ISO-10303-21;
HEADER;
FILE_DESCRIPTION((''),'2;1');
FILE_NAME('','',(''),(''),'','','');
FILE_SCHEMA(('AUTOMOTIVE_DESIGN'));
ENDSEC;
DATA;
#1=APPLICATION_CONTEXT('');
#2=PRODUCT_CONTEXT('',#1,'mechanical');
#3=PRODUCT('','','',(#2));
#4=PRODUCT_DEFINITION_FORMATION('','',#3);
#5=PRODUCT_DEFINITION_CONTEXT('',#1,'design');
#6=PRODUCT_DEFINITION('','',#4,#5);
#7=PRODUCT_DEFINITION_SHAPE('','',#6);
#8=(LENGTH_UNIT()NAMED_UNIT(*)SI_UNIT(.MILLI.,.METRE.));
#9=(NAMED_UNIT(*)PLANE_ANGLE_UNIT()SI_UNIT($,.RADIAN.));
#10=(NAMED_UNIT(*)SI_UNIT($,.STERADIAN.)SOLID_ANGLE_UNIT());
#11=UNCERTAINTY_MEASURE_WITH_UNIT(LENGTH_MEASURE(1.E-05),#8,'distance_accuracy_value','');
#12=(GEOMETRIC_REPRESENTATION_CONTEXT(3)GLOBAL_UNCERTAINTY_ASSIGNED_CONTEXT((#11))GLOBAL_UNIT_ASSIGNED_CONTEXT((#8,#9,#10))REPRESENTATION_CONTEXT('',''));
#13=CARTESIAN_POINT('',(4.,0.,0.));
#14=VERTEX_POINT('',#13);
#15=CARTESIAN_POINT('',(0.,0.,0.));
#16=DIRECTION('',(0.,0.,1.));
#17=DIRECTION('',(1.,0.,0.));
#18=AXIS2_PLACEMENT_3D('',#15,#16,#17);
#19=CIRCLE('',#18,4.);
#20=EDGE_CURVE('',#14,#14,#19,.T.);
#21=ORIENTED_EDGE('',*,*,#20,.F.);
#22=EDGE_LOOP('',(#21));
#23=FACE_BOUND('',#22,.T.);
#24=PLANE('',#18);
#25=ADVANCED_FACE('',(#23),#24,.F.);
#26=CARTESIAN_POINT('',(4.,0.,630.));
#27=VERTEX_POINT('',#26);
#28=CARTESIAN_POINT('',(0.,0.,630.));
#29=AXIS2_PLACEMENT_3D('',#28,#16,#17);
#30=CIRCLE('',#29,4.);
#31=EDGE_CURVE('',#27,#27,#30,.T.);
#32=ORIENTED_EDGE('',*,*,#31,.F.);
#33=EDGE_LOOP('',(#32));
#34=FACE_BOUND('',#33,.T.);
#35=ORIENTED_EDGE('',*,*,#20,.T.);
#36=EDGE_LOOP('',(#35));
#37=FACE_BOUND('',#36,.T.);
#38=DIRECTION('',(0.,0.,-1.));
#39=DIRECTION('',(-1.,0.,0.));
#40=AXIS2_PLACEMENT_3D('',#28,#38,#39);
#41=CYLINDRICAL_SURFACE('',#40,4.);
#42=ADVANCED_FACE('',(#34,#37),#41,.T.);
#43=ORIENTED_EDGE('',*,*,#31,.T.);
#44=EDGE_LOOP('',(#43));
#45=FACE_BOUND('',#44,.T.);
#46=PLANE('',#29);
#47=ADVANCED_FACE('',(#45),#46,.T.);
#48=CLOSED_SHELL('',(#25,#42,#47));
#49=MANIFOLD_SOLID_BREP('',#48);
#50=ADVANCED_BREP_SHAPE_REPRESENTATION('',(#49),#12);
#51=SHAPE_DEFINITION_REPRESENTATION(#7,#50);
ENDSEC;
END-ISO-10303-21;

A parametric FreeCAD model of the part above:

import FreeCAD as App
import Part
import Sketcher

V = App.Vector

doc = App.newDocument("Part")
body = doc.addObject("PartDesign::Body", "Body")

# Sketch on XY plane
sketch1 = body.newObject("Sketcher::SketchObject", "Sketch")
sketch1.AttachmentSupport = (doc.getObject("XY_Plane"), [""])
sketch1.MapMode = "FlatFace"
sketch1.addGeometry(Part.Circle(V(0, 0, 0), V(0, 0, 1), 4), False)
sketch1.addConstraint(Sketcher.Constraint("Coincident", 0, 3, -1, 1))
sketch1.addConstraint(Sketcher.Constraint("Diameter", 0, 8.0))
pad1 = body.newObject("PartDesign::Pad", "Pad")
pad1.Profile = sketch1
pad1.Length = 630

doc.recompute()
